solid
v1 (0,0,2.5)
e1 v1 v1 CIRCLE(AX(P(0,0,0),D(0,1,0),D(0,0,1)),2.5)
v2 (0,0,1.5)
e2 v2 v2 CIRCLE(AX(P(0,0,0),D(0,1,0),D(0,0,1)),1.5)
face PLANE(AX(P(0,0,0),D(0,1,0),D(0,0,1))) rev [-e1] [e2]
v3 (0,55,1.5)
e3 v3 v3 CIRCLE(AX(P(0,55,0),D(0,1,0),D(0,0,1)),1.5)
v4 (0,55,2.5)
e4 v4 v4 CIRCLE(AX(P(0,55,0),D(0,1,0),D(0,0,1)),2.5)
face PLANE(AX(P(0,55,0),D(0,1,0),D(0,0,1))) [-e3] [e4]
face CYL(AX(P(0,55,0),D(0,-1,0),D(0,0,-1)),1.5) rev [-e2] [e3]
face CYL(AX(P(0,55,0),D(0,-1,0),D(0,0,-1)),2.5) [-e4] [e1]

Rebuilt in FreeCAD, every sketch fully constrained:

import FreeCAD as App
import Part
import Sketcher
Q = App.Units.Quantity

doc = App.newDocument("Part")
body = doc.addObject("PartDesign::Body", "Body")

# Sketch on XZ plane
sketch1 = body.newObject("Sketcher::SketchObject", "Sketch")
sketch1.AttachmentSupport = (doc.getObject("XZ_Plane"), [""])
sketch1.MapMode = "FlatFace"
sketch1.addGeometry([
    Part.Circle(App.Vector(0, 0, 0), App.Vector(0, 0, 1), 2.5),
    Part.Circle(App.Vector(0, 0, 0), App.Vector(0, 0, 1), 1.5),
], False)
sketch1.addConstraint([
    Sketcher.Constraint("Coincident", 0, 3, -1, 1),
    Sketcher.Constraint("Coincident", 1, 3, -1, 1),
    Sketcher.Constraint("Diameter", 0, Q("5 mm")),
    Sketcher.Constraint("Diameter", 1, Q("3 mm")),
])
pad1 = body.newObject("PartDesign::Pad", "Pad")
pad1.Profile = sketch1
pad1.Length = 55
pad1.Reversed = True

doc.recompute()
